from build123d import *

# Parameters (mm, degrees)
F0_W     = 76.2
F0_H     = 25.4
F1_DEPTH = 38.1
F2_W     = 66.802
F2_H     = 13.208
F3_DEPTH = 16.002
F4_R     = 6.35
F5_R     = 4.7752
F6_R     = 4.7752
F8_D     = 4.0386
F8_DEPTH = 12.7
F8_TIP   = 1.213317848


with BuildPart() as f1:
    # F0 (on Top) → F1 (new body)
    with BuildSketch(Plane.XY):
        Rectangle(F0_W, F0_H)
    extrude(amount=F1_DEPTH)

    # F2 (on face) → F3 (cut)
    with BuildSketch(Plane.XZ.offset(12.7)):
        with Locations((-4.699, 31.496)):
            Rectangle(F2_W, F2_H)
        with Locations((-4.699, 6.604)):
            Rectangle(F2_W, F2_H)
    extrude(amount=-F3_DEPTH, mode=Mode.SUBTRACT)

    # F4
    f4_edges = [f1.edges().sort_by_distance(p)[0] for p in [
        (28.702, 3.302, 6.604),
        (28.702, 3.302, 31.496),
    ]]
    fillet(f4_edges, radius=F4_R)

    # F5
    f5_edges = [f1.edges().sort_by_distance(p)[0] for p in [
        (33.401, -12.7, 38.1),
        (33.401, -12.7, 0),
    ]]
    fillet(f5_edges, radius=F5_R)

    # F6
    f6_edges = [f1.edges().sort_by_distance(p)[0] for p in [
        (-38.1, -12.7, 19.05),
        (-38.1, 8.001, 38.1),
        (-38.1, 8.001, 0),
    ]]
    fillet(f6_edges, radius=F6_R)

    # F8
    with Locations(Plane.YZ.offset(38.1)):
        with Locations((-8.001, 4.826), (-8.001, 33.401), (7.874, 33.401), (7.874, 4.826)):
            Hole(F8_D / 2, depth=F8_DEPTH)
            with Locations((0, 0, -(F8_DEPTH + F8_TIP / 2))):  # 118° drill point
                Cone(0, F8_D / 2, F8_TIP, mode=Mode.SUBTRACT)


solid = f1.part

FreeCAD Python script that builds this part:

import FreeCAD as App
import Part
import Sketcher
Q = App.Units.Quantity


def edges_at(feature, points):
    """Names of the edges that pass closest to the given points."""
    edges = feature.Shape.Edges
    near = lambda p: min(range(len(edges)), key=lambda i: edges[i].distToShape(Part.Vertex(*p))[0])
    return sorted({f"Edge{near(p) + 1}" for p in points})


def add_polygon(sketch, points):
    """Adds a closed chain of lines whose ends are joined by coincident constraints."""
    first, n = sketch.GeometryCount, len(points)
    for a, b in zip(points, points[1:] + points[:1]):
        sketch.addGeometry(Part.LineSegment(App.Vector(*a, 0), App.Vector(*b, 0)), False)
    for i in range(n):
        sketch.addConstraint(Sketcher.Constraint("Coincident", first + i, 2, first + (i + 1) % n, 1))

doc = App.newDocument("Part")
params = doc.addObject("Spreadsheet::Sheet", "Params")
for row, (alias, value) in enumerate([
    ("sketch1_width", "3 in"),
    ("sketch1_height", "1 in"),
    ("pad1_length", "1.5 in"),
    ("sketch2_width", "2.63 in"),
    ("sketch2_height", "0.52 in"),
    ("pocket1_length", "0.63 in"),
    ("fillet_radius", "0.25 in"),
    ("fillet2_radius", "0.188 in"),
    ("fillet3_radius", "0.188 in"),
    ("sketch3_diameter", "0.159 in"),
    ("hole_diameter", "0.159 in"),
    ("hole_depth", "0.5 in"),
], start=1):
    params.set(f"A{row}", alias)
    params.set(f"B{row}", "=" + value)
    params.setAlias(f"B{row}", alias)

body = doc.addObject("PartDesign::Body", "Body")

sketch1 = body.newObject("Sketcher::SketchObject", "Sketch")
sketch1.AttachmentSupport = (doc.getObject("XY_Plane"), [""])
sketch1.MapMode = "FlatFace"
add_polygon(sketch1, [(-38, 13), (-38, -13), (38, -13), (38, 13)])
sketch1.addConstraint([
    Sketcher.Constraint("Vertical", 0),
    Sketcher.Constraint("Horizontal", 1),
    Sketcher.Constraint("Vertical", 2),
    Sketcher.Constraint("Horizontal", 3),
    Sketcher.Constraint("Symmetric", 0, 2, 2, 2, -1, 1),
    Sketcher.Constraint("DistanceX", 1, 1, 1, 2, Q("3 in")),
    Sketcher.Constraint("DistanceY", 0, 2, 0, 1, Q("1 in")),
])
sketch1.setExpression("Constraints[9]", "Params.sketch1_width")
sketch1.setExpression("Constraints[10]", "Params.sketch1_height")
pad1 = body.newObject("PartDesign::Pad", "Pad")
pad1.Profile = sketch1
pad1.setExpression("Length", "Params.pad1_length")

sketch2 = body.newObject("Sketcher::SketchObject", "Sketch001")
sketch2.AttachmentSupport = (doc.getObject("XZ_Plane"), [""])
sketch2.MapMode = "FlatFace"
sketch2.AttachmentOffset = App.Placement(App.Vector(0, 0, 0.5 * 25.4), App.Rotation())
add_polygon(sketch2, [(-38, 38), (-38, 25), (29, 25), (29, 38)])
add_polygon(sketch2, [(-38, 13), (-38, 0), (29, 0), (29, 13)])
sketch2.addConstraint([
    Sketcher.Constraint("Vertical", 0),
    Sketcher.Constraint("Horizontal", 1),
    Sketcher.Constraint("Vertical", 2),
    Sketcher.Constraint("Horizontal", 3),
    Sketcher.Constraint("Vertical", 4),
    Sketcher.Constraint("Horizontal", 5),
    Sketcher.Constraint("Vertical", 6),
    Sketcher.Constraint("Horizontal", 7),
    Sketcher.Constraint("PointOnObject", 4, 2, -1),
    Sketcher.Constraint("Vertical", 3, 2, 4, 2),
    Sketcher.Constraint("Vertical", 2, 2, 5, 2),
    Sketcher.Constraint("Equal", 2, 4),
    Sketcher.Constraint("DistanceX", 1, 1, 1, 2, Q("2.63 in")),
    Sketcher.Constraint("DistanceY", 0, 2, 0, 1, Q("0.52 in")),
    Sketcher.Constraint("DistanceX", 0, 2, -1, 1, Q("1.5 in")),
    Sketcher.Constraint("DistanceY", -1, 1, 2, 2, Q("1.5 in")),
])
sketch2.setExpression("Constraints[20]", "Params.sketch2_width")
sketch2.setExpression("Constraints[21]", "Params.sketch2_height")
pocket1 = body.newObject("PartDesign::Pocket", "Pocket")
pocket1.Profile = sketch2
pocket1.setExpression("Length", "Params.pocket1_length")
doc.recompute()

fillet = body.newObject("PartDesign::Fillet", "Fillet")
fillet.Base = (pocket1, edges_at(pocket1, [(28.702, 3.302, 6.604), (28.702, 3.302, 31.496)]))
fillet.setExpression("Radius", "Params.fillet_radius")
doc.recompute()

fillet2 = body.newObject("PartDesign::Fillet", "Fillet001")
fillet2.Base = (fillet, edges_at(fillet, [(33.401, -12.7, 38.1), (33.401, -12.7, 0)]))
fillet2.setExpression("Radius", "Params.fillet2_radius")
doc.recompute()

fillet3 = body.newObject("PartDesign::Fillet", "Fillet002")
fillet3.Base = (fillet2, edges_at(fillet2, [(-38.1, -12.7, 19.05), (-38.1, 8.001, 38.1), (-38.1, 8.001, 0)]))
fillet3.setExpression("Radius", "Params.fillet3_radius")

sketch3 = body.newObject("Sketcher::SketchObject", "Sketch002")
sketch3.AttachmentSupport = (doc.getObject("YZ_Plane"), [""])
sketch3.MapMode = "FlatFace"
sketch3.AttachmentOffset = App.Placement(App.Vector(0, 0, 1.5 * 25.4), App.Rotation())
sketch3.addGeometry([
    Part.Circle(App.Vector(-8, 4.8, 0), App.Vector(0, 0, 1), 2),
    Part.Circle(App.Vector(-8, 33.4, 0), App.Vector(0, 0, 1), 2),
    Part.Circle(App.Vector(7.9, 33.4, 0), App.Vector(0, 0, 1), 2),
    Part.Circle(App.Vector(7.9, 4.8, 0), App.Vector(0, 0, 1), 2),
], False)
sketch3.addConstraint([
    Sketcher.Constraint("Equal", 0, 1),
    Sketcher.Constraint("Equal", 1, 2),
    Sketcher.Constraint("Equal", 2, 3),
    Sketcher.Constraint("Horizontal", 1, 3, 2, 3),
    Sketcher.Constraint("Horizontal", 0, 3, 3, 3),
    Sketcher.Constraint("Vertical", 0, 3, 1, 3),
    Sketcher.Constraint("Vertical", 2, 3, 3, 3),
    Sketcher.Constraint("Diameter", 0, Q("0.159 in")),
    Sketcher.Constraint("DistanceY", -1, 1, 0, 3, Q("0.19 in")),
    Sketcher.Constraint("DistanceX", -1, 1, 2, 3, Q("0.31 in")),
    Sketcher.Constraint("DistanceX", 0, 3, -1, 1, Q("0.315 in")),
    Sketcher.Constraint("DistanceY", -1, 1, 1, 3, Q("1.315 in")),
])
sketch3.setExpression("Constraints[7]", "Params.sketch3_diameter")
doc.recompute()
hole = body.newObject("PartDesign::Hole", "Hole")
hole.Profile = sketch3
hole.ThreadType = "None"
hole.setExpression("Diameter", "Params.hole_diameter")
hole.DepthType = "Dimension"
hole.setExpression("Depth", "Params.hole_depth")
hole.DrillPoint = "Angled"
hole.DrillPointAngle = 118

doc.recompute()
